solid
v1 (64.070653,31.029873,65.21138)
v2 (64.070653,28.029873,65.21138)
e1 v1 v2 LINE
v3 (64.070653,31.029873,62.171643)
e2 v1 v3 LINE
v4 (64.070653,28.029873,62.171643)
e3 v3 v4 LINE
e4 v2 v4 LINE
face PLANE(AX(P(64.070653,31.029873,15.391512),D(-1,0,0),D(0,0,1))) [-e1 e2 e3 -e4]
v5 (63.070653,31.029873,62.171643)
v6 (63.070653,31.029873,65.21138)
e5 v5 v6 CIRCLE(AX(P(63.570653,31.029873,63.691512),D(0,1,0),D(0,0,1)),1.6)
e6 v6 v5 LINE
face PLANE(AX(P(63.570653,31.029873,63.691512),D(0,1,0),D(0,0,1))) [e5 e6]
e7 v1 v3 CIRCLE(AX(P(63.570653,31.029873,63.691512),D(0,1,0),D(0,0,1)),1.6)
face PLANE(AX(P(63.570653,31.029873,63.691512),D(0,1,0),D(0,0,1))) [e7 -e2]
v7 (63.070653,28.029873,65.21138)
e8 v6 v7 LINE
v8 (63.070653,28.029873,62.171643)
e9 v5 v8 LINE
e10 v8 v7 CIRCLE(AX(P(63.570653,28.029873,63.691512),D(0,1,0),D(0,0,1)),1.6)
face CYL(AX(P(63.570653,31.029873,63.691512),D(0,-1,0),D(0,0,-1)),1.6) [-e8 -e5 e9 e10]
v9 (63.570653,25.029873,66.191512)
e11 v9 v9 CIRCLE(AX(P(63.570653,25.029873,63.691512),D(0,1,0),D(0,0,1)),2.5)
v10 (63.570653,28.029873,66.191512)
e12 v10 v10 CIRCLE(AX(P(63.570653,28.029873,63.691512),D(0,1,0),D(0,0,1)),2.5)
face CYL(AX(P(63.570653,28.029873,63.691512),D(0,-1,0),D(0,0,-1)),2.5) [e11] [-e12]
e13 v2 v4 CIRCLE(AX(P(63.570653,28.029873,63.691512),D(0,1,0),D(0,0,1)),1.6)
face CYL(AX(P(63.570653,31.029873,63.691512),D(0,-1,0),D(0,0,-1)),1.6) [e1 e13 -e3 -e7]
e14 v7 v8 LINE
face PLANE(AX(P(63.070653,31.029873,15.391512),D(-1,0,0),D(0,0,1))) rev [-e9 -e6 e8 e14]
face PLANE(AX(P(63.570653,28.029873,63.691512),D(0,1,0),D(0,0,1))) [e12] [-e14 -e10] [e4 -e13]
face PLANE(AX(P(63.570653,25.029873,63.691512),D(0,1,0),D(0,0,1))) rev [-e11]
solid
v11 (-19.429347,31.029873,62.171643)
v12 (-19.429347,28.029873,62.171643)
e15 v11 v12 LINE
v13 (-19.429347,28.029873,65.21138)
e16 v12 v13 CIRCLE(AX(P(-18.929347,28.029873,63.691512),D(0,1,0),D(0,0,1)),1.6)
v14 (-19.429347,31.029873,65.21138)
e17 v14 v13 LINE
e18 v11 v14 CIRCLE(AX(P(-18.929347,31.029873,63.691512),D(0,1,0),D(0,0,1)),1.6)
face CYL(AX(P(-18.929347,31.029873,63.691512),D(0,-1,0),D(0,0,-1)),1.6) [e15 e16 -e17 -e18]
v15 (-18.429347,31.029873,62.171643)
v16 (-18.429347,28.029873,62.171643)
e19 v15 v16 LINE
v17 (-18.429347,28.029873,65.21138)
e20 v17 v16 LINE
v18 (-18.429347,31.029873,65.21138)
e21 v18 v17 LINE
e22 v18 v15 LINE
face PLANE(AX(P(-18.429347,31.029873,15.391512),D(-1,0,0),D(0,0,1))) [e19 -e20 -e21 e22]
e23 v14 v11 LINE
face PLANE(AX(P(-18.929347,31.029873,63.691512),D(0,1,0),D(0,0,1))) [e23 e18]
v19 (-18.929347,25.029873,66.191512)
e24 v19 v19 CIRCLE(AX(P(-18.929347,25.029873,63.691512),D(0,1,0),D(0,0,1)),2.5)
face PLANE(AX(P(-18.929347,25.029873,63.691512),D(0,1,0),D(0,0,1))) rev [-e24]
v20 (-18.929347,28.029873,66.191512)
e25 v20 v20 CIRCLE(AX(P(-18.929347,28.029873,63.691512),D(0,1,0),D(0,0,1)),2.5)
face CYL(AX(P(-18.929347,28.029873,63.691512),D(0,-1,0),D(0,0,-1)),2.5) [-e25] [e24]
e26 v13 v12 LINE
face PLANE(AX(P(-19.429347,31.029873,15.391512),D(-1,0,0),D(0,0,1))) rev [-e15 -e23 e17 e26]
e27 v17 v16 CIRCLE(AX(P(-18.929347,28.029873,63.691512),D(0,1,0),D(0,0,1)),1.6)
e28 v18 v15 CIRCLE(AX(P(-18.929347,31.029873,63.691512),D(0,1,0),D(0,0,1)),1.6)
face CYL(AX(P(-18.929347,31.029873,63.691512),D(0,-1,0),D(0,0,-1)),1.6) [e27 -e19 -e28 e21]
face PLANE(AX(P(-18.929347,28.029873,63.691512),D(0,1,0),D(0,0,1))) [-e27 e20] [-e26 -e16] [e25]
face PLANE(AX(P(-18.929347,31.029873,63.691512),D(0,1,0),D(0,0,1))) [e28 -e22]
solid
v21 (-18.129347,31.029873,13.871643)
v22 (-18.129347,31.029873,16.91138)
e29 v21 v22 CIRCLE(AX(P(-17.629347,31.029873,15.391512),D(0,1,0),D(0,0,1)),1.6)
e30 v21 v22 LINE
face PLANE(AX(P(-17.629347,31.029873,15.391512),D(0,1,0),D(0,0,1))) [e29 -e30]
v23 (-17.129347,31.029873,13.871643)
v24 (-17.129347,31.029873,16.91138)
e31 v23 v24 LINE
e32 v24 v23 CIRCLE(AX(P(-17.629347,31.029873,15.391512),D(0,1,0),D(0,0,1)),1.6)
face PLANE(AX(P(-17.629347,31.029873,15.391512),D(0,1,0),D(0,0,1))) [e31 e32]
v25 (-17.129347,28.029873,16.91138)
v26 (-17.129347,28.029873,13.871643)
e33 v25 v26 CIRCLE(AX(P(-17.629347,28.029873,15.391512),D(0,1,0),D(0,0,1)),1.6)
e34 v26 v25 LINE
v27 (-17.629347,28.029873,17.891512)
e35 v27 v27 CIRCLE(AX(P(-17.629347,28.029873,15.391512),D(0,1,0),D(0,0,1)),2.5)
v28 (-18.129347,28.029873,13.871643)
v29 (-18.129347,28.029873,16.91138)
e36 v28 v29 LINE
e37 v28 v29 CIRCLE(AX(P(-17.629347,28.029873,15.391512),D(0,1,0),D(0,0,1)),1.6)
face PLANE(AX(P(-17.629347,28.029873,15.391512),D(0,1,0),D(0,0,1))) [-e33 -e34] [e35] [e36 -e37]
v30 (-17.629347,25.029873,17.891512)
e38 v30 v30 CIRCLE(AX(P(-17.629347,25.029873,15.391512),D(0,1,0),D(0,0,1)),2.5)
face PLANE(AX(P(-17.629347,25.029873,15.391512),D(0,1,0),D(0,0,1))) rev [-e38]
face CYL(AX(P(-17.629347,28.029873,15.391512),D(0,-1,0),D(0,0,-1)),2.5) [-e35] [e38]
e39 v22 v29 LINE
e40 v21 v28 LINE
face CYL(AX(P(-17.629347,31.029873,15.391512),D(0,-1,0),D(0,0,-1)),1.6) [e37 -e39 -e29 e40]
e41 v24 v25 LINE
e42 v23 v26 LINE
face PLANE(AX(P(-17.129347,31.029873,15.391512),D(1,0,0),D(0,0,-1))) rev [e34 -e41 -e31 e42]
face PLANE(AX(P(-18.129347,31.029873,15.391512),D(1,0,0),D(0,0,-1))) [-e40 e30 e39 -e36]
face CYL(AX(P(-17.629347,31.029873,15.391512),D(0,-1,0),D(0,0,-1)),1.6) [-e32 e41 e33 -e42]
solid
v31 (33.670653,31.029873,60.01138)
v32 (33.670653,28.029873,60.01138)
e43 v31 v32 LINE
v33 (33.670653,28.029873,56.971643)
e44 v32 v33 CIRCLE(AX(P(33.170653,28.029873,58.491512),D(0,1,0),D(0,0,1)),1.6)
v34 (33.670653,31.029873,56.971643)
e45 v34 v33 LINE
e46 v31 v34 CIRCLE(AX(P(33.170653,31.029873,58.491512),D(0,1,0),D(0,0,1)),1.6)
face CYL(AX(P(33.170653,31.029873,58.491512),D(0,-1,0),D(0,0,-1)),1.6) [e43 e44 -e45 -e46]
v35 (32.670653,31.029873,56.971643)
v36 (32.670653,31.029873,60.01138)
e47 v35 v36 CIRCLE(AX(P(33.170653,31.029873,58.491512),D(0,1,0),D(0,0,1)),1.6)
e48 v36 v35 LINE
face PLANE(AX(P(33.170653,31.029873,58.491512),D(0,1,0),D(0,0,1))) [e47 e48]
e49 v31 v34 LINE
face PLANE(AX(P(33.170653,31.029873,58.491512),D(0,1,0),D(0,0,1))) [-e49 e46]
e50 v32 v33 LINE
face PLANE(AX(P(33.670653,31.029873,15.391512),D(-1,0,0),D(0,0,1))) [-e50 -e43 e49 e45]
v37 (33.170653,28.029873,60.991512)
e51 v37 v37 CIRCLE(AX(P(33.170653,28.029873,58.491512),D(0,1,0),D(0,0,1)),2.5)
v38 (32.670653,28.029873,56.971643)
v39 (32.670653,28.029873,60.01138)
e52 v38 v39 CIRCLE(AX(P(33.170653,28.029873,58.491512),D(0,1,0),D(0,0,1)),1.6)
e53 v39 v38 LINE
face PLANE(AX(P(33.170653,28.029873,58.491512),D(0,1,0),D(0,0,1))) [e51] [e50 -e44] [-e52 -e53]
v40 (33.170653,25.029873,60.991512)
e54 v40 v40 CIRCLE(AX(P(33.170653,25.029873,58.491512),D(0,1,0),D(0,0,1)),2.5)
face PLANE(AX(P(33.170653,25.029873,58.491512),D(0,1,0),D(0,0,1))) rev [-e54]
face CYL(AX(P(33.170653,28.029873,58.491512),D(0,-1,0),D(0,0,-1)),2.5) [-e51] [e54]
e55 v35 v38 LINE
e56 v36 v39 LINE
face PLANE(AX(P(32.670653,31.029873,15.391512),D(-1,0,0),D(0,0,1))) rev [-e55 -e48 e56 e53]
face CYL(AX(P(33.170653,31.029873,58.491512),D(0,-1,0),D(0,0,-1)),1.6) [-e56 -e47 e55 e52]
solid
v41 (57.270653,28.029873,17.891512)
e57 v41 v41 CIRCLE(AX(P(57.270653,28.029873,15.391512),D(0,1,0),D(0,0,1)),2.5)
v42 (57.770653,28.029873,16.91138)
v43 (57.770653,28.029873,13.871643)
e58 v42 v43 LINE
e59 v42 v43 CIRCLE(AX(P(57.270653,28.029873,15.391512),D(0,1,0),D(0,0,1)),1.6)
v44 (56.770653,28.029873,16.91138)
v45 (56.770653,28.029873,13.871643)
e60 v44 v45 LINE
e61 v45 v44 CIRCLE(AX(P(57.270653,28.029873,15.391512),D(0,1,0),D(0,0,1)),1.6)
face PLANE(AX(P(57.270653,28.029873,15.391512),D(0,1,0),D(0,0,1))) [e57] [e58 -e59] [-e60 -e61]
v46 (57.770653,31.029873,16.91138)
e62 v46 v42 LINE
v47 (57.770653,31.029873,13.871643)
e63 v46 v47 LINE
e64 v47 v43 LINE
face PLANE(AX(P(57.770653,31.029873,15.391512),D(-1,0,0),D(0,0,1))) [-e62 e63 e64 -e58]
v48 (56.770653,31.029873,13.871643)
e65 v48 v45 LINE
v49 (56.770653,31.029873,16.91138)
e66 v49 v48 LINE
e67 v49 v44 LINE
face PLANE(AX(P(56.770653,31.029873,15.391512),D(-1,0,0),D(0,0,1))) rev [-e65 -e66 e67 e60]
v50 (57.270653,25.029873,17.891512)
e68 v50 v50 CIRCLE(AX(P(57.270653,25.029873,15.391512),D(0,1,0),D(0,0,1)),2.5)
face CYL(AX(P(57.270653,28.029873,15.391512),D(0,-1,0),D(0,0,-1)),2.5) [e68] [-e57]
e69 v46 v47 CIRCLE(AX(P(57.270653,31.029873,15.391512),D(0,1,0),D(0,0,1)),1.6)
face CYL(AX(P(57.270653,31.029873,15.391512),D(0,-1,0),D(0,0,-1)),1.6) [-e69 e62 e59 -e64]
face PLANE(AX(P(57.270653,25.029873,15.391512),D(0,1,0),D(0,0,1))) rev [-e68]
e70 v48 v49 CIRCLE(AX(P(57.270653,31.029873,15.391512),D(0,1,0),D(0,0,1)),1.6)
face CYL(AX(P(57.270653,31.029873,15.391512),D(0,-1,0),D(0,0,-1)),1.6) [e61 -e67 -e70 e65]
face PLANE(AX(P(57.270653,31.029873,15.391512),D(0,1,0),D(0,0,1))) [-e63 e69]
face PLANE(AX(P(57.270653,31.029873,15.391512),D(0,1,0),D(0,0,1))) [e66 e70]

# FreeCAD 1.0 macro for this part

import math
import FreeCAD as App
import Part
import Sketcher

V = App.Vector

doc = App.newDocument("Part")
params = doc.addObject("Spreadsheet::Sheet", "Params")
for row, (alias, value) in enumerate([
    ("sketch1_diameter", "5 mm"),
    ("pad1_length", "3 mm"),
    ("sketch2_diameter", "5 mm"),
    ("pad2_length", "3 mm"),
    ("sketch3_diameter", "5 mm"),
    ("pad3_length", "3 mm"),
    ("sketch4_diameter", "5 mm"),
    ("pad4_length", "3 mm"),
    ("sketch5_diameter", "5 mm"),
    ("pad5_length", "3 mm"),
    ("sketch6_radius", "1.6 mm"),
    ("pad6_length", "3 mm"),
], start=1):
    params.set(f"A{row}", alias)
    params.set(f"B{row}", "=" + value)
    params.setAlias(f"B{row}", alias)

body = doc.addObject("PartDesign::Body", "Body")

# Sketch on XZ plane
sketch1 = body.newObject("Sketcher::SketchObject", "Sketch")
sketch1.AttachmentSupport = (doc.getObject("XZ_Plane"), [""])
sketch1.MapMode = "FlatFace"
sketch1.AttachmentOffset = App.Placement(V(0, 0, -25.029873), App.Rotation())
sketch1.addGeometry(Part.Circle(V(-17.6, 15.4, 0), V(0, 0, 1), 2.5), False)
sketch1.addConstraint(Sketcher.Constraint("Diameter", 0, 5.0))
sketch1.addConstraint(Sketcher.Constraint("DistanceY", -1, 1, 0, 3, 15.391512))
sketch1.addConstraint(Sketcher.Constraint("DistanceX", 0, 3, -1, 1, 17.629347))
sketch1.setExpression("Constraints[0]", "Params.sketch1_diameter")
pad1 = body.newObject("PartDesign::Pad", "Pad")
pad1.Profile = sketch1
pad1.setExpression("Length", "Params.pad1_length")
pad1.Reversed = True
body2 = doc.addObject("PartDesign::Body", "Body001")

# Sketch on XZ plane
sketch2 = body2.newObject("Sketcher::SketchObject", "Sketch001")
sketch2.AttachmentSupport = (doc.getObject("XZ_Plane001"), [""])
sketch2.MapMode = "FlatFace"
sketch2.AttachmentOffset = App.Placement(V(0, 0, -25.029873), App.Rotation())
sketch2.addGeometry(Part.Circle(V(57.3, 15.4, 0), V(0, 0, 1), 2.5), False)
sketch2.addConstraint(Sketcher.Constraint("Diameter", 0, 5.0))
sketch2.addConstraint(Sketcher.Constraint("DistanceY", -1, 1, 0, 3, 15.391512))
sketch2.addConstraint(Sketcher.Constraint("DistanceX", -1, 1, 0, 3, 57.270653))
sketch2.setExpression("Constraints[0]", "Params.sketch2_diameter")
pad2 = body2.newObject("PartDesign::Pad", "Pad001")
pad2.Profile = sketch2
pad2.setExpression("Length", "Params.pad2_length")
pad2.Reversed = True
body3 = doc.addObject("PartDesign::Body", "Body002")

# Sketch on XZ plane
sketch3 = body3.newObject("Sketcher::SketchObject", "Sketch002")
sketch3.AttachmentSupport = (doc.getObject("XZ_Plane002"), [""])
sketch3.MapMode = "FlatFace"
sketch3.AttachmentOffset = App.Placement(V(0, 0, -25.029873), App.Rotation())
sketch3.addGeometry(Part.Circle(V(63.6, 63.7, 0), V(0, 0, 1), 2.5), False)
sketch3.addConstraint(Sketcher.Constraint("Diameter", 0, 5.0))
sketch3.addConstraint(Sketcher.Constraint("DistanceY", -1, 1, 0, 3, 63.691512))
sketch3.addConstraint(Sketcher.Constraint("DistanceX", -1, 1, 0, 3, 63.570653))
sketch3.setExpression("Constraints[0]", "Params.sketch3_diameter")
pad3 = body3.newObject("PartDesign::Pad", "Pad002")
pad3.Profile = sketch3
pad3.setExpression("Length", "Params.pad3_length")
pad3.Reversed = True
body4 = doc.addObject("PartDesign::Body", "Body003")

# Sketch on XZ plane
sketch4 = body4.newObject("Sketcher::SketchObject", "Sketch003")
sketch4.AttachmentSupport = (doc.getObject("XZ_Plane003"), [""])
sketch4.MapMode = "FlatFace"
sketch4.AttachmentOffset = App.Placement(V(0, 0, -25.029873), App.Rotation())
sketch4.addGeometry(Part.Circle(V(33.2, 58.5, 0), V(0, 0, 1), 2.5), False)
sketch4.addConstraint(Sketcher.Constraint("Diameter", 0, 5.0))
sketch4.addConstraint(Sketcher.Constraint("DistanceY", -1, 1, 0, 3, 58.491512))
sketch4.addConstraint(Sketcher.Constraint("DistanceX", -1, 1, 0, 3, 33.170653))
sketch4.setExpression("Constraints[0]", "Params.sketch4_diameter")
pad4 = body4.newObject("PartDesign::Pad", "Pad003")
pad4.Profile = sketch4
pad4.setExpression("Length", "Params.pad4_length")
pad4.Reversed = True
body5 = doc.addObject("PartDesign::Body", "Body004")

# Sketch on XZ plane
sketch5 = body5.newObject("Sketcher::SketchObject", "Sketch004")
sketch5.AttachmentSupport = (doc.getObject("XZ_Plane004"), [""])
sketch5.MapMode = "FlatFace"
sketch5.AttachmentOffset = App.Placement(V(0, 0, -25.029873), App.Rotation())
sketch5.addGeometry(Part.Circle(V(-18.9, 63.7, 0), V(0, 0, 1), 2.5), False)
sketch5.addConstraint(Sketcher.Constraint("Diameter", 0, 5.0))
sketch5.addConstraint(Sketcher.Constraint("DistanceY", -1, 1, 0, 3, 63.691512))
sketch5.addConstraint(Sketcher.Constraint("DistanceX", 0, 3, -1, 1, 18.929347))
sketch5.setExpression("Constraints[0]", "Params.sketch5_diameter")
pad5 = body5.newObject("PartDesign::Pad", "Pad004")
pad5.Profile = sketch5
pad5.setExpression("Length", "Params.pad5_length")
pad5.Reversed = True
body.AllowCompound = True
doc.recompute()

boolean = body.newObject("PartDesign::Boolean", "Boolean")
boolean.Type = "Fuse"
boolean.addObjects([body2])
doc.recompute()

boolean2 = body.newObject("PartDesign::Boolean", "Boolean001")
boolean2.Type = "Fuse"
boolean2.addObjects([body3])
doc.recompute()

boolean3 = body.newObject("PartDesign::Boolean", "Boolean002")
boolean3.Type = "Fuse"
boolean3.addObjects([body4])
doc.recompute()

boolean4 = body.newObject("PartDesign::Boolean", "Boolean003")
boolean4.Type = "Fuse"
boolean4.addObjects([body5])

# Sketch on XZ plane
sketch6 = body.newObject("Sketcher::SketchObject", "Sketch005")
sketch6.AttachmentSupport = (doc.getObject("XZ_Plane"), [""])
sketch6.MapMode = "FlatFace"
sketch6.AttachmentOffset = App.Placement(V(0, 0, -28.029873), App.Rotation())
sketch6.addGeometry(Part.LineSegment(V(-17.1, 13.9, 0), V(-17.1, 16.9, 0)), False)
sketch6.addGeometry(Part.ArcOfCircle(Part.Circle(V(-17.6, 15.4, 0), V(0, 0, 1), 1.6), math.radians(0), math.radians(72)), False)
sketch6.addGeometry(Part.ArcOfCircle(Part.Circle(V(-17.6, 15.4, 0), V(0, 0, 1), 1.6), math.radians(-72), math.radians(0)), False)
sketch6.addGeometry(Part.ArcOfCircle(Part.Circle(V(-17.6, 15.4, 0), V(0, 0, 1), 1.6), math.radians(108), math.radians(252)), False)
sketch6.addGeometry(Part.LineSegment(V(-18.1, 16.9, 0), V(-18.1, 13.9, 0)), False)
sketch6.addGeometry(Part.ArcOfCircle(Part.Circle(V(63.6, 63.7, 0), V(0, 0, 1), 1.6), math.radians(-72), math.radians(0)), False)
sketch6.addGeometry(Part.LineSegment(V(64.1, 62.2, 0), V(64.1, 65.2, 0)), False)
sketch6.addGeometry(Part.ArcOfCircle(Part.Circle(V(63.6, 63.7, 0), V(0, 0, 1), 1.6), math.radians(0), math.radians(72)), False)
sketch6.addGeometry(Part.LineSegment(V(63.1, 65.2, 0), V(63.1, 62.2, 0)), False)
sketch6.addGeometry(Part.ArcOfCircle(Part.Circle(V(63.6, 63.7, 0), V(0, 0, 1), 1.6), math.radians(108), math.radians(252)), False)
sketch6.addGeometry(Part.ArcOfCircle(Part.Circle(V(33.2, 58.5, 0), V(0, 0, 1), 1.6), math.radians(-72), math.radians(0)), False)
sketch6.addGeometry(Part.LineSegment(V(33.7, 57, 0), V(33.7, 60, 0)), False)
sketch6.addGeometry(Part.ArcOfCircle(Part.Circle(V(33.2, 58.5, 0), V(0, 0, 1), 1.6), math.radians(0), math.radians(72)), False)
sketch6.addGeometry(Part.LineSegment(V(32.7, 60, 0), V(32.7, 57, 0)), False)
sketch6.addGeometry(Part.ArcOfCircle(Part.Circle(V(33.2, 58.5, 0), V(0, 0, 1), 1.6), math.radians(108), math.radians(252)), False)
sketch6.addGeometry(Part.ArcOfCircle(Part.Circle(V(-18.9, 63.7, 0), V(0, 0, 1), 1.6), math.radians(-72), math.radians(0)), False)
sketch6.addGeometry(Part.LineSegment(V(-18.4, 62.2, 0), V(-18.4, 65.2, 0)), False)
sketch6.addGeometry(Part.ArcOfCircle(Part.Circle(V(-18.9, 63.7, 0), V(0, 0, 1), 1.6), math.radians(0), math.radians(72)), False)
sketch6.addGeometry(Part.LineSegment(V(-19.4, 65.2, 0), V(-19.4, 62.2, 0)), False)
sketch6.addGeometry(Part.ArcOfCircle(Part.Circle(V(-18.9, 63.7, 0), V(0, 0, 1), 1.6), math.radians(108), math.radians(252)), False)
sketch6.addGeometry(Part.ArcOfCircle(Part.Circle(V(57.3, 15.4, 0), V(0, 0, 1), 1.6), math.radians(-72), math.radians(0)), False)
sketch6.addGeometry(Part.LineSegment(V(57.8, 13.9, 0), V(57.8, 16.9, 0)), False)
sketch6.addGeometry(Part.ArcOfCircle(Part.Circle(V(57.3, 15.4, 0), V(0, 0, 1), 1.6), math.radians(0), math.radians(72)), False)
sketch6.addGeometry(Part.LineSegment(V(56.8, 16.9, 0), V(56.8, 13.9, 0)), False)
sketch6.addGeometry(Part.ArcOfCircle(Part.Circle(V(57.3, 15.4, 0), V(0, 0, 1), 1.6), math.radians(108), math.radians(252)), False)
sketch6.addConstraint(Sketcher.Constraint("Coincident", 0, 2, 1, 2))
sketch6.addConstraint(Sketcher.Constraint("Tangent", 1, 1, 2, 2))
sketch6.addConstraint(Sketcher.Constraint("Coincident", 2, 1, 0, 1))
sketch6.addConstraint(Sketcher.Constraint("Coincident", 3, 1, 4, 1))
sketch6.addConstraint(Sketcher.Constraint("Coincident", 4, 2, 3, 2))
sketch6.addConstraint(Sketcher.Constraint("Coincident", 5, 1, 6, 1))
sketch6.addConstraint(Sketcher.Constraint("Coincident", 6, 2, 7, 2))
sketch6.addConstraint(Sketcher.Constraint("Tangent", 7, 1, 5, 2))
sketch6.addConstraint(Sketcher.Constraint("Coincident", 8, 1, 9, 1))
sketch6.addConstraint(Sketcher.Constraint("Coincident", 9, 2, 8, 2))
sketch6.addConstraint(Sketcher.Constraint("Coincident", 10, 1, 11, 1))
sketch6.addConstraint(Sketcher.Constraint("Coincident", 11, 2, 12, 2))
sketch6.addConstraint(Sketcher.Constraint("Tangent", 12, 1, 10, 2))
sketch6.addConstraint(Sketcher.Constraint("Coincident", 13, 1, 14, 1))
sketch6.addConstraint(Sketcher.Constraint("Coincident", 14, 2, 13, 2))
sketch6.addConstraint(Sketcher.Constraint("Coincident", 15, 1, 16, 1))
sketch6.addConstraint(Sketcher.Constraint("Coincident", 16, 2, 17, 2))
sketch6.addConstraint(Sketcher.Constraint("Tangent", 17, 1, 15, 2))
sketch6.addConstraint(Sketcher.Constraint("Coincident", 18, 1, 19, 1))
sketch6.addConstraint(Sketcher.Constraint("Coincident", 19, 2, 18, 2))
sketch6.addConstraint(Sketcher.Constraint("Coincident", 20, 1, 21, 1))
sketch6.addConstraint(Sketcher.Constraint("Coincident", 21, 2, 22, 2))
sketch6.addConstraint(Sketcher.Constraint("Tangent", 22, 1, 20, 2))
sketch6.addConstraint(Sketcher.Constraint("Coincident", 23, 1, 24, 1))
sketch6.addConstraint(Sketcher.Constraint("Coincident", 24, 2, 23, 2))
sketch6.addConstraint(Sketcher.Constraint("Vertical", 0))
sketch6.addConstraint(Sketcher.Constraint("Vertical", 4))
sketch6.addConstraint(Sketcher.Constraint("Vertical", 6))
sketch6.addConstraint(Sketcher.Constraint("Vertical", 8))
sketch6.addConstraint(Sketcher.Constraint("Vertical", 11))
sketch6.addConstraint(Sketcher.Constraint("Vertical", 13))
sketch6.addConstraint(Sketcher.Constraint("Vertical", 16))
sketch6.addConstraint(Sketcher.Constraint("Vertical", 18))
sketch6.addConstraint(Sketcher.Constraint("Vertical", 21))
sketch6.addConstraint(Sketcher.Constraint("Vertical", 23))
sketch6.addConstraint(Sketcher.Constraint("Coincident", 3, 3, 1, 3))
sketch6.addConstraint(Sketcher.Constraint("Coincident", 9, 3, 5, 3))
sketch6.addConstraint(Sketcher.Constraint("Coincident", 14, 3, 10, 3))
sketch6.addConstraint(Sketcher.Constraint("Coincident", 19, 3, 15, 3))
sketch6.addConstraint(Sketcher.Constraint("Coincident", 24, 3, 20, 3))
sketch6.addConstraint(Sketcher.Constraint("Equal", 1, 2))
sketch6.addConstraint(Sketcher.Constraint("Equal", 2, 3))
sketch6.addConstraint(Sketcher.Constraint("Equal", 3, 5))
sketch6.addConstraint(Sketcher.Constraint("Equal", 5, 7))
sketch6.addConstraint(Sketcher.Constraint("Equal", 7, 9))
sketch6.addConstraint(Sketcher.Constraint("Equal", 9, 10))
sketch6.addConstraint(Sketcher.Constraint("Equal", 10, 12))
sketch6.addConstraint(Sketcher.Constraint("Equal", 12, 14))
sketch6.addConstraint(Sketcher.Constraint("Equal", 14, 15))
sketch6.addConstraint(Sketcher.Constraint("Equal", 15, 17))
sketch6.addConstraint(Sketcher.Constraint("Equal", 17, 19))
sketch6.addConstraint(Sketcher.Constraint("Equal", 19, 20))
sketch6.addConstraint(Sketcher.Constraint("Equal", 20, 22))
sketch6.addConstraint(Sketcher.Constraint("Equal", 22, 24))
sketch6.addConstraint(Sketcher.Constraint("Horizontal", 9, 3, 15, 3))
sketch6.addConstraint(Sketcher.Constraint("Horizontal", 3, 3, 20, 3))
sketch6.addConstraint(Sketcher.Constraint("Horizontal", 24, 3, 1, 1))
sketch6.addConstraint(Sketcher.Constraint("Horizontal", 0, 2, 3, 1))
sketch6.addConstraint(Sketcher.Constraint("Horizontal", 19, 3, 7, 1))
sketch6.addConstraint(Sketcher.Constraint("Horizontal", 6, 2, 8, 1))
sketch6.addConstraint(Sketcher.Constraint("Horizontal", 14, 3, 12, 1))
sketch6.addConstraint(Sketcher.Constraint("Horizontal", 11, 2, 13, 1))
sketch6.addConstraint(Sketcher.Constraint("Horizontal", 9, 2, 15, 1))
sketch6.addConstraint(Sketcher.Constraint("Horizontal", 7, 1, 17, 1))
sketch6.addConstraint(Sketcher.Constraint("Horizontal", 16, 2, 18, 1))
sketch6.addConstraint(Sketcher.Constraint("Horizontal", 4, 2, 20, 1))
sketch6.addConstraint(Sketcher.Constraint("Horizontal", 1, 1, 22, 1))
sketch6.addConstraint(Sketcher.Constraint("Horizontal", 21, 2, 23, 1))
sketch6.addConstraint(Sketcher.Constraint("Equal", 4, 6))
sketch6.addConstraint(Sketcher.Constraint("Equal", 8, 11))
sketch6.addConstraint(Sketcher.Constraint("Radius", 1, 1.6))
sketch6.addConstraint(Sketcher.Constraint("DistanceX", 3, 1, 0, 2, 1.0))
sketch6.addConstraint(Sketcher.Constraint("DistanceX", 2, 3, 5, 3, 81.2))
sketch6.addConstraint(Sketcher.Constraint("DistanceY", 2, 3, 5, 3, 48.3))
sketch6.addConstraint(Sketcher.Constraint("DistanceX", 10, 3, 7, 3, 30.4))
sketch6.addConstraint(Sketcher.Constraint("DistanceY", 10, 3, 7, 3, 5.2))
sketch6.addConstraint(Sketcher.Constraint("DistanceX", 15, 3, 3, 3, 1.3))
sketch6.addConstraint(Sketcher.Constraint("DistanceX", 20, 3, 5, 3, 6.3))
sketch6.addConstraint(Sketcher.Constraint("DistanceY", -1, 1, 1, 3, 15.391512))
sketch6.addConstraint(Sketcher.Constraint("DistanceX", 1, 3, -1, 1, 17.629347))
sketch6.setExpression("Constraints[70]", "Params.sketch6_radius")
pad6 = body.newObject("PartDesign::Pad", "Pad005")
pad6.Profile = sketch6
pad6.setExpression("Length", "Params.pad6_length")
pad6.Reversed = True

doc.recompute()
